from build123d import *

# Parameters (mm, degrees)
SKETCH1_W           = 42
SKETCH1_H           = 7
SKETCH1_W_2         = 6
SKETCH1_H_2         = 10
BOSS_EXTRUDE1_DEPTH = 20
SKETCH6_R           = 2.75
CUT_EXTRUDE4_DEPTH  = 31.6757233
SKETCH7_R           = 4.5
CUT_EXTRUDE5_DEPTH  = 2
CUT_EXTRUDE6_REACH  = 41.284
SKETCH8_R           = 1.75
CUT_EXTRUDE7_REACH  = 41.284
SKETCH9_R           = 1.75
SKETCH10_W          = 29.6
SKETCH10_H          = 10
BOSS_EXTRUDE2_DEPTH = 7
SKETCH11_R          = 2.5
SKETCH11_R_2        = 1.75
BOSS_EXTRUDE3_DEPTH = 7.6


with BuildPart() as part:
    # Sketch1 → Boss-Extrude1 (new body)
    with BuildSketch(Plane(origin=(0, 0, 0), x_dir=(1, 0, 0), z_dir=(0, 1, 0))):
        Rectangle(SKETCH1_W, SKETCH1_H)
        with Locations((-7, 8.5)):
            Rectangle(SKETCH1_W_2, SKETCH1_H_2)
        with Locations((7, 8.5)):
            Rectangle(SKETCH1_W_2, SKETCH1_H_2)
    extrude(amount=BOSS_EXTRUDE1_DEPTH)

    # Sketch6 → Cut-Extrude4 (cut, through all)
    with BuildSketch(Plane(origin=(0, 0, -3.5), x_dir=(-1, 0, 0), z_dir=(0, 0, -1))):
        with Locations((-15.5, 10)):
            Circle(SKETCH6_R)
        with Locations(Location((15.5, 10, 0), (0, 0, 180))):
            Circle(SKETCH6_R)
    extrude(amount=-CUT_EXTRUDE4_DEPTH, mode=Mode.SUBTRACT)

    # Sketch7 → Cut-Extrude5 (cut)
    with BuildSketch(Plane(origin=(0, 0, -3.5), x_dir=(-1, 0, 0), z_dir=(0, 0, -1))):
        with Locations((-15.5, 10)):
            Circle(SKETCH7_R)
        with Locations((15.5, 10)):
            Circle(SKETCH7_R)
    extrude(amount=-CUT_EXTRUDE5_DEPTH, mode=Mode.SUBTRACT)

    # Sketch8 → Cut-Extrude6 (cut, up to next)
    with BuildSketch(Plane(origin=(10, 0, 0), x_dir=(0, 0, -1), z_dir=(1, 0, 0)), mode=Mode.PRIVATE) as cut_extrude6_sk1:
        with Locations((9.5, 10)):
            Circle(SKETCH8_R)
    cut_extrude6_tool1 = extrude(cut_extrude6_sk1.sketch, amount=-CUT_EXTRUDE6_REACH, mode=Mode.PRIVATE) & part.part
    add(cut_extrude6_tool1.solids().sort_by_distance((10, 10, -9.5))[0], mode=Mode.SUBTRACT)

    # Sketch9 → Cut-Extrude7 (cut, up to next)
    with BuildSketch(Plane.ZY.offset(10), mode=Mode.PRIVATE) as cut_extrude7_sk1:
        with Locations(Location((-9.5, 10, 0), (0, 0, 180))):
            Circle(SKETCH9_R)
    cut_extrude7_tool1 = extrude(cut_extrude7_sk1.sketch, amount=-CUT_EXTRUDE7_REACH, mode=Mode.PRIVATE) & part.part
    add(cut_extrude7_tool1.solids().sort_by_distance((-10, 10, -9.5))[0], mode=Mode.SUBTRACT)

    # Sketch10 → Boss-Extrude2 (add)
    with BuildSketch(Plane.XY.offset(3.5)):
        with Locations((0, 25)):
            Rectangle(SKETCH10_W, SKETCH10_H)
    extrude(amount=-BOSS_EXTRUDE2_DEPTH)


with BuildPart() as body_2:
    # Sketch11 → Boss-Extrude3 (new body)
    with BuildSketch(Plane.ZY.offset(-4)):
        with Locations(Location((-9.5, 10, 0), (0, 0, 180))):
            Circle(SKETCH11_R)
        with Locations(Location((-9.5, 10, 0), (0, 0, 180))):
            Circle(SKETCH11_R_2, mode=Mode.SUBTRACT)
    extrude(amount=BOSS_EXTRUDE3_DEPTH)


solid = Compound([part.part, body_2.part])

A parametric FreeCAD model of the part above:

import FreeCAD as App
import Part
import Sketcher

doc = App.newDocument("Part")
body = doc.addObject("PartDesign::Body", "Body")

sketch1 = body.newObject("Sketcher::SketchObject", "Sketch")
sketch1.AttachmentSupport = (doc.getObject("XZ_Plane"), [""])
sketch1.MapMode = "FlatFace"
sketch1.addGeometry([
    Part.LineSegment(App.Vector(-21, -4, 0), App.Vector(-21, 4, 0)),
    Part.LineSegment(App.Vector(-21, 4, 0), App.Vector(21, 4, 0)),
    Part.LineSegment(App.Vector(21, 4, 0), App.Vector(21, -4, 0)),
    Part.LineSegment(App.Vector(21, -4, 0), App.Vector(10, -4, 0)),
    Part.LineSegment(App.Vector(10, -4, 0), App.Vector(10, -14, 0)),
    Part.LineSegment(App.Vector(10, -14, 0), App.Vector(4, -14, 0)),
    Part.LineSegment(App.Vector(4, -14, 0), App.Vector(4, -4, 0)),
    Part.LineSegment(App.Vector(4, -4, 0), App.Vector(-4, -4, 0)),
    Part.LineSegment(App.Vector(-4, -4, 0), App.Vector(-4, -14, 0)),
    Part.LineSegment(App.Vector(-4, -14, 0), App.Vector(-10, -14, 0)),
    Part.LineSegment(App.Vector(-10, -14, 0), App.Vector(-10, -4, 0)),
    Part.LineSegment(App.Vector(-10, -4, 0), App.Vector(-21, -4, 0)),
], False)
sketch1.addConstraint([
    Sketcher.Constraint("Coincident", 0, 2, 1, 1),
    Sketcher.Constraint("Coincident", 1, 2, 2, 1),
    Sketcher.Constraint("Coincident", 2, 2, 3, 1),
    Sketcher.Constraint("Coincident", 3, 2, 4, 1),
    Sketcher.Constraint("Coincident", 4, 2, 5, 1),
    Sketcher.Constraint("Coincident", 5, 2, 6, 1),
    Sketcher.Constraint("Coincident", 6, 2, 7, 1),
    Sketcher.Constraint("Coincident", 7, 2, 8, 1),
    Sketcher.Constraint("Coincident", 8, 2, 9, 1),
    Sketcher.Constraint("Coincident", 9, 2, 10, 1),
    Sketcher.Constraint("Coincident", 10, 2, 11, 1),
    Sketcher.Constraint("Coincident", 11, 2, 0, 1),
    Sketcher.Constraint("Vertical", 0),
    Sketcher.Constraint("Horizontal", 1),
    Sketcher.Constraint("Vertical", 2),
    Sketcher.Constraint("Horizontal", 3),
    Sketcher.Constraint("Vertical", 4),
    Sketcher.Constraint("Horizontal", 5),
    Sketcher.Constraint("Vertical", 6),
    Sketcher.Constraint("Horizontal", 7),
    Sketcher.Constraint("Vertical", 8),
    Sketcher.Constraint("Horizontal", 9),
    Sketcher.Constraint("Vertical", 10),
    Sketcher.Constraint("Horizontal", 11),
    Sketcher.Constraint("Symmetric", 0, 2, 2, 2, -1, 1),
    Sketcher.Constraint("Symmetric", 5, 2, 8, 2, -2),
    Sketcher.Constraint("Symmetric", 3, 2, 10, 2, -2),
    Sketcher.Constraint("Horizontal", 3, 2, 6, 2),
    Sketcher.Constraint("DistanceX", 1, 1, 1, 2, 42.0),
    Sketcher.Constraint("DistanceX", 3, 2, 3, 1, 11.0),
    Sketcher.Constraint("DistanceX", 5, 2, 5, 1, 6.0),
    Sketcher.Constraint("DistanceY", 0, 1, 0, 2, 7.0),
    Sketcher.Constraint("DistanceY", 4, 2, 4, 1, 10.0),
])
pad1 = body.newObject("PartDesign::Pad", "Pad")
pad1.Profile = sketch1
pad1.Length = 20
pad1.Reversed = True

sketch2 = body.newObject("Sketcher::SketchObject", "Sketch001")
sketch2.AttachmentSupport = (doc.getObject("XY_Plane"), [""])
sketch2.MapMode = "FlatFace"
sketch2.AttachmentOffset = App.Placement(App.Vector(0, 0, -3.5), App.Rotation())
sketch2.addGeometry([
    Part.Circle(App.Vector(15.5, 10, 0), App.Vector(0, 0, 1), 2.8),
    Part.Circle(App.Vector(-15.5, 10, 0), App.Vector(0, 0, 1), 2.8),
], False)
sketch2.addConstraint([
    Sketcher.Constraint("Equal", 0, 1),
    Sketcher.Constraint("Symmetric", 0, 3, 1, 3, -2),
    Sketcher.Constraint("Diameter", 0, 5.5),
    Sketcher.Constraint("DistanceY", -1, 1, 0, 3, 10.0),
    Sketcher.Constraint("DistanceX", 1, 3, 0, 3, 31.0),
])
pocket1 = body.newObject("PartDesign::Pocket", "Pocket")
pocket1.Profile = sketch2
pocket1.Type = "ThroughAll"
pocket1.Reversed = True

sketch3 = body.newObject("Sketcher::SketchObject", "Sketch002")
sketch3.AttachmentSupport = (doc.getObject("XY_Plane"), [""])
sketch3.MapMode = "FlatFace"
sketch3.AttachmentOffset = App.Placement(App.Vector(0, 0, -3.5), App.Rotation())
sketch3.addGeometry([
    Part.Circle(App.Vector(15.5, 10, 0), App.Vector(0, 0, 1), 4.5),
    Part.Circle(App.Vector(-15.5, 10, 0), App.Vector(0, 0, 1), 4.5),
], False)
sketch3.addConstraint([
    Sketcher.Constraint("Equal", 0, 1),
    Sketcher.Constraint("Symmetric", 0, 3, 1, 3, -2),
    Sketcher.Constraint("Diameter", 0, 9.0),
    Sketcher.Constraint("DistanceY", -1, 1, 0, 3, 10.0),
    Sketcher.Constraint("DistanceX", 1, 3, 0, 3, 31.0),
])
pocket2 = body.newObject("PartDesign::Pocket", "Pocket001")
pocket2.Profile = sketch3
pocket2.Length = 2
pocket2.Reversed = True

sketch4 = body.newObject("Sketcher::SketchObject", "Sketch003")
sketch4.AttachmentSupport = (doc.getObject("YZ_Plane"), [""])
sketch4.MapMode = "FlatFace"
sketch4.AttachmentOffset = App.Placement(App.Vector(0, 0, 10), App.Rotation())
sketch4.addGeometry(Part.Circle(App.Vector(10, -9.5, 0), App.Vector(0, 0, 1), 1.8), False)
sketch4.addConstraint([
    Sketcher.Constraint("Diameter", 0, 3.5),
    Sketcher.Constraint("DistanceX", -1, 1, 0, 3, 10.0),
    Sketcher.Constraint("DistanceY", 0, 3, -1, 1, 9.5),
])
pocket3 = body.newObject("PartDesign::Pocket", "Pocket002")
pocket3.Profile = sketch4
pocket3.Type = "UpToFirst"

sketch5 = body.newObject("Sketcher::SketchObject", "Sketch004")
sketch5.AttachmentSupport = (doc.getObject("YZ_Plane"), [""])
sketch5.MapMode = "FlatFace"
sketch5.AttachmentOffset = App.Placement(App.Vector(0, 0, -10), App.Rotation())
sketch5.addGeometry(Part.Circle(App.Vector(10, -9.5, 0), App.Vector(0, 0, 1), 1.8), False)
sketch5.addConstraint([
    Sketcher.Constraint("Diameter", 0, 3.5),
    Sketcher.Constraint("DistanceX", -1, 1, 0, 3, 10.0),
    Sketcher.Constraint("DistanceY", 0, 3, -1, 1, 9.5),
])
pocket4 = body.newObject("PartDesign::Pocket", "Pocket003")
pocket4.Profile = sketch5
pocket4.Type = "UpToFirst"
pocket4.Reversed = True

sketch6 = body.newObject("Sketcher::SketchObject", "Sketch005")
sketch6.AttachmentSupport = (doc.getObject("XY_Plane"), [""])
sketch6.MapMode = "FlatFace"
sketch6.AttachmentOffset = App.Placement(App.Vector(0, 0, 3.5), App.Rotation())
sketch6.addGeometry([
    Part.LineSegment(App.Vector(-15, 30, 0), App.Vector(-15, 20, 0)),
    Part.LineSegment(App.Vector(-15, 20, 0), App.Vector(15, 20, 0)),
    Part.LineSegment(App.Vector(15, 20, 0), App.Vector(15, 30, 0)),
    Part.LineSegment(App.Vector(15, 30, 0), App.Vector(-15, 30, 0)),
], False)
sketch6.addConstraint([
    Sketcher.Constraint("Coincident", 0, 2, 1, 1),
    Sketcher.Constraint("Coincident", 1, 2, 2, 1),
    Sketcher.Constraint("Coincident", 2, 2, 3, 1),
    Sketcher.Constraint("Coincident", 3, 2, 0, 1),
    Sketcher.Constraint("Vertical", 0),
    Sketcher.Constraint("Horizontal", 1),
    Sketcher.Constraint("Vertical", 2),
    Sketcher.Constraint("Horizontal", 3),
    Sketcher.Constraint("DistanceY", 0, 2, 0, 1, 10.0),
    Sketcher.Constraint("DistanceX", 1, 1, 1, 2, 29.6),
    Sketcher.Constraint("DistanceY", -1, 1, 0, 2, 20.0),
    Sketcher.Constraint("DistanceX", 0, 2, -1, 1, 14.8),
])
pad2 = body.newObject("PartDesign::Pad", "Pad001")
pad2.Profile = sketch6
pad2.Length = 7
pad2.Reversed = True
body2 = doc.addObject("PartDesign::Body", "Body001")

sketch7 = body2.newObject("Sketcher::SketchObject", "Sketch006")
sketch7.AttachmentSupport = (doc.getObject("YZ_Plane001"), [""])
sketch7.MapMode = "FlatFace"
sketch7.AttachmentOffset = App.Placement(App.Vector(0, 0, 4), App.Rotation())
sketch7.addGeometry([
    Part.Circle(App.Vector(10, -9.5, 0), App.Vector(0, 0, 1), 2.5),
    Part.Circle(App.Vector(10, -9.5, 0), App.Vector(0, 0, 1), 1.8),
], False)
sketch7.addConstraint([
    Sketcher.Constraint("Coincident", 1, 3, 0, 3),
    Sketcher.Constraint("Diameter", 0, 5.0),
    Sketcher.Constraint("Diameter", 1, 3.5),
    Sketcher.Constraint("DistanceX", -1, 1, 0, 3, 10.0),
    Sketcher.Constraint("DistanceY", 0, 3, -1, 1, 9.5),
])
pad3 = body2.newObject("PartDesign::Pad", "Pad002")
pad3.Profile = sketch7
pad3.Length = 7.6
pad3.Reversed = True

doc.recompute()
